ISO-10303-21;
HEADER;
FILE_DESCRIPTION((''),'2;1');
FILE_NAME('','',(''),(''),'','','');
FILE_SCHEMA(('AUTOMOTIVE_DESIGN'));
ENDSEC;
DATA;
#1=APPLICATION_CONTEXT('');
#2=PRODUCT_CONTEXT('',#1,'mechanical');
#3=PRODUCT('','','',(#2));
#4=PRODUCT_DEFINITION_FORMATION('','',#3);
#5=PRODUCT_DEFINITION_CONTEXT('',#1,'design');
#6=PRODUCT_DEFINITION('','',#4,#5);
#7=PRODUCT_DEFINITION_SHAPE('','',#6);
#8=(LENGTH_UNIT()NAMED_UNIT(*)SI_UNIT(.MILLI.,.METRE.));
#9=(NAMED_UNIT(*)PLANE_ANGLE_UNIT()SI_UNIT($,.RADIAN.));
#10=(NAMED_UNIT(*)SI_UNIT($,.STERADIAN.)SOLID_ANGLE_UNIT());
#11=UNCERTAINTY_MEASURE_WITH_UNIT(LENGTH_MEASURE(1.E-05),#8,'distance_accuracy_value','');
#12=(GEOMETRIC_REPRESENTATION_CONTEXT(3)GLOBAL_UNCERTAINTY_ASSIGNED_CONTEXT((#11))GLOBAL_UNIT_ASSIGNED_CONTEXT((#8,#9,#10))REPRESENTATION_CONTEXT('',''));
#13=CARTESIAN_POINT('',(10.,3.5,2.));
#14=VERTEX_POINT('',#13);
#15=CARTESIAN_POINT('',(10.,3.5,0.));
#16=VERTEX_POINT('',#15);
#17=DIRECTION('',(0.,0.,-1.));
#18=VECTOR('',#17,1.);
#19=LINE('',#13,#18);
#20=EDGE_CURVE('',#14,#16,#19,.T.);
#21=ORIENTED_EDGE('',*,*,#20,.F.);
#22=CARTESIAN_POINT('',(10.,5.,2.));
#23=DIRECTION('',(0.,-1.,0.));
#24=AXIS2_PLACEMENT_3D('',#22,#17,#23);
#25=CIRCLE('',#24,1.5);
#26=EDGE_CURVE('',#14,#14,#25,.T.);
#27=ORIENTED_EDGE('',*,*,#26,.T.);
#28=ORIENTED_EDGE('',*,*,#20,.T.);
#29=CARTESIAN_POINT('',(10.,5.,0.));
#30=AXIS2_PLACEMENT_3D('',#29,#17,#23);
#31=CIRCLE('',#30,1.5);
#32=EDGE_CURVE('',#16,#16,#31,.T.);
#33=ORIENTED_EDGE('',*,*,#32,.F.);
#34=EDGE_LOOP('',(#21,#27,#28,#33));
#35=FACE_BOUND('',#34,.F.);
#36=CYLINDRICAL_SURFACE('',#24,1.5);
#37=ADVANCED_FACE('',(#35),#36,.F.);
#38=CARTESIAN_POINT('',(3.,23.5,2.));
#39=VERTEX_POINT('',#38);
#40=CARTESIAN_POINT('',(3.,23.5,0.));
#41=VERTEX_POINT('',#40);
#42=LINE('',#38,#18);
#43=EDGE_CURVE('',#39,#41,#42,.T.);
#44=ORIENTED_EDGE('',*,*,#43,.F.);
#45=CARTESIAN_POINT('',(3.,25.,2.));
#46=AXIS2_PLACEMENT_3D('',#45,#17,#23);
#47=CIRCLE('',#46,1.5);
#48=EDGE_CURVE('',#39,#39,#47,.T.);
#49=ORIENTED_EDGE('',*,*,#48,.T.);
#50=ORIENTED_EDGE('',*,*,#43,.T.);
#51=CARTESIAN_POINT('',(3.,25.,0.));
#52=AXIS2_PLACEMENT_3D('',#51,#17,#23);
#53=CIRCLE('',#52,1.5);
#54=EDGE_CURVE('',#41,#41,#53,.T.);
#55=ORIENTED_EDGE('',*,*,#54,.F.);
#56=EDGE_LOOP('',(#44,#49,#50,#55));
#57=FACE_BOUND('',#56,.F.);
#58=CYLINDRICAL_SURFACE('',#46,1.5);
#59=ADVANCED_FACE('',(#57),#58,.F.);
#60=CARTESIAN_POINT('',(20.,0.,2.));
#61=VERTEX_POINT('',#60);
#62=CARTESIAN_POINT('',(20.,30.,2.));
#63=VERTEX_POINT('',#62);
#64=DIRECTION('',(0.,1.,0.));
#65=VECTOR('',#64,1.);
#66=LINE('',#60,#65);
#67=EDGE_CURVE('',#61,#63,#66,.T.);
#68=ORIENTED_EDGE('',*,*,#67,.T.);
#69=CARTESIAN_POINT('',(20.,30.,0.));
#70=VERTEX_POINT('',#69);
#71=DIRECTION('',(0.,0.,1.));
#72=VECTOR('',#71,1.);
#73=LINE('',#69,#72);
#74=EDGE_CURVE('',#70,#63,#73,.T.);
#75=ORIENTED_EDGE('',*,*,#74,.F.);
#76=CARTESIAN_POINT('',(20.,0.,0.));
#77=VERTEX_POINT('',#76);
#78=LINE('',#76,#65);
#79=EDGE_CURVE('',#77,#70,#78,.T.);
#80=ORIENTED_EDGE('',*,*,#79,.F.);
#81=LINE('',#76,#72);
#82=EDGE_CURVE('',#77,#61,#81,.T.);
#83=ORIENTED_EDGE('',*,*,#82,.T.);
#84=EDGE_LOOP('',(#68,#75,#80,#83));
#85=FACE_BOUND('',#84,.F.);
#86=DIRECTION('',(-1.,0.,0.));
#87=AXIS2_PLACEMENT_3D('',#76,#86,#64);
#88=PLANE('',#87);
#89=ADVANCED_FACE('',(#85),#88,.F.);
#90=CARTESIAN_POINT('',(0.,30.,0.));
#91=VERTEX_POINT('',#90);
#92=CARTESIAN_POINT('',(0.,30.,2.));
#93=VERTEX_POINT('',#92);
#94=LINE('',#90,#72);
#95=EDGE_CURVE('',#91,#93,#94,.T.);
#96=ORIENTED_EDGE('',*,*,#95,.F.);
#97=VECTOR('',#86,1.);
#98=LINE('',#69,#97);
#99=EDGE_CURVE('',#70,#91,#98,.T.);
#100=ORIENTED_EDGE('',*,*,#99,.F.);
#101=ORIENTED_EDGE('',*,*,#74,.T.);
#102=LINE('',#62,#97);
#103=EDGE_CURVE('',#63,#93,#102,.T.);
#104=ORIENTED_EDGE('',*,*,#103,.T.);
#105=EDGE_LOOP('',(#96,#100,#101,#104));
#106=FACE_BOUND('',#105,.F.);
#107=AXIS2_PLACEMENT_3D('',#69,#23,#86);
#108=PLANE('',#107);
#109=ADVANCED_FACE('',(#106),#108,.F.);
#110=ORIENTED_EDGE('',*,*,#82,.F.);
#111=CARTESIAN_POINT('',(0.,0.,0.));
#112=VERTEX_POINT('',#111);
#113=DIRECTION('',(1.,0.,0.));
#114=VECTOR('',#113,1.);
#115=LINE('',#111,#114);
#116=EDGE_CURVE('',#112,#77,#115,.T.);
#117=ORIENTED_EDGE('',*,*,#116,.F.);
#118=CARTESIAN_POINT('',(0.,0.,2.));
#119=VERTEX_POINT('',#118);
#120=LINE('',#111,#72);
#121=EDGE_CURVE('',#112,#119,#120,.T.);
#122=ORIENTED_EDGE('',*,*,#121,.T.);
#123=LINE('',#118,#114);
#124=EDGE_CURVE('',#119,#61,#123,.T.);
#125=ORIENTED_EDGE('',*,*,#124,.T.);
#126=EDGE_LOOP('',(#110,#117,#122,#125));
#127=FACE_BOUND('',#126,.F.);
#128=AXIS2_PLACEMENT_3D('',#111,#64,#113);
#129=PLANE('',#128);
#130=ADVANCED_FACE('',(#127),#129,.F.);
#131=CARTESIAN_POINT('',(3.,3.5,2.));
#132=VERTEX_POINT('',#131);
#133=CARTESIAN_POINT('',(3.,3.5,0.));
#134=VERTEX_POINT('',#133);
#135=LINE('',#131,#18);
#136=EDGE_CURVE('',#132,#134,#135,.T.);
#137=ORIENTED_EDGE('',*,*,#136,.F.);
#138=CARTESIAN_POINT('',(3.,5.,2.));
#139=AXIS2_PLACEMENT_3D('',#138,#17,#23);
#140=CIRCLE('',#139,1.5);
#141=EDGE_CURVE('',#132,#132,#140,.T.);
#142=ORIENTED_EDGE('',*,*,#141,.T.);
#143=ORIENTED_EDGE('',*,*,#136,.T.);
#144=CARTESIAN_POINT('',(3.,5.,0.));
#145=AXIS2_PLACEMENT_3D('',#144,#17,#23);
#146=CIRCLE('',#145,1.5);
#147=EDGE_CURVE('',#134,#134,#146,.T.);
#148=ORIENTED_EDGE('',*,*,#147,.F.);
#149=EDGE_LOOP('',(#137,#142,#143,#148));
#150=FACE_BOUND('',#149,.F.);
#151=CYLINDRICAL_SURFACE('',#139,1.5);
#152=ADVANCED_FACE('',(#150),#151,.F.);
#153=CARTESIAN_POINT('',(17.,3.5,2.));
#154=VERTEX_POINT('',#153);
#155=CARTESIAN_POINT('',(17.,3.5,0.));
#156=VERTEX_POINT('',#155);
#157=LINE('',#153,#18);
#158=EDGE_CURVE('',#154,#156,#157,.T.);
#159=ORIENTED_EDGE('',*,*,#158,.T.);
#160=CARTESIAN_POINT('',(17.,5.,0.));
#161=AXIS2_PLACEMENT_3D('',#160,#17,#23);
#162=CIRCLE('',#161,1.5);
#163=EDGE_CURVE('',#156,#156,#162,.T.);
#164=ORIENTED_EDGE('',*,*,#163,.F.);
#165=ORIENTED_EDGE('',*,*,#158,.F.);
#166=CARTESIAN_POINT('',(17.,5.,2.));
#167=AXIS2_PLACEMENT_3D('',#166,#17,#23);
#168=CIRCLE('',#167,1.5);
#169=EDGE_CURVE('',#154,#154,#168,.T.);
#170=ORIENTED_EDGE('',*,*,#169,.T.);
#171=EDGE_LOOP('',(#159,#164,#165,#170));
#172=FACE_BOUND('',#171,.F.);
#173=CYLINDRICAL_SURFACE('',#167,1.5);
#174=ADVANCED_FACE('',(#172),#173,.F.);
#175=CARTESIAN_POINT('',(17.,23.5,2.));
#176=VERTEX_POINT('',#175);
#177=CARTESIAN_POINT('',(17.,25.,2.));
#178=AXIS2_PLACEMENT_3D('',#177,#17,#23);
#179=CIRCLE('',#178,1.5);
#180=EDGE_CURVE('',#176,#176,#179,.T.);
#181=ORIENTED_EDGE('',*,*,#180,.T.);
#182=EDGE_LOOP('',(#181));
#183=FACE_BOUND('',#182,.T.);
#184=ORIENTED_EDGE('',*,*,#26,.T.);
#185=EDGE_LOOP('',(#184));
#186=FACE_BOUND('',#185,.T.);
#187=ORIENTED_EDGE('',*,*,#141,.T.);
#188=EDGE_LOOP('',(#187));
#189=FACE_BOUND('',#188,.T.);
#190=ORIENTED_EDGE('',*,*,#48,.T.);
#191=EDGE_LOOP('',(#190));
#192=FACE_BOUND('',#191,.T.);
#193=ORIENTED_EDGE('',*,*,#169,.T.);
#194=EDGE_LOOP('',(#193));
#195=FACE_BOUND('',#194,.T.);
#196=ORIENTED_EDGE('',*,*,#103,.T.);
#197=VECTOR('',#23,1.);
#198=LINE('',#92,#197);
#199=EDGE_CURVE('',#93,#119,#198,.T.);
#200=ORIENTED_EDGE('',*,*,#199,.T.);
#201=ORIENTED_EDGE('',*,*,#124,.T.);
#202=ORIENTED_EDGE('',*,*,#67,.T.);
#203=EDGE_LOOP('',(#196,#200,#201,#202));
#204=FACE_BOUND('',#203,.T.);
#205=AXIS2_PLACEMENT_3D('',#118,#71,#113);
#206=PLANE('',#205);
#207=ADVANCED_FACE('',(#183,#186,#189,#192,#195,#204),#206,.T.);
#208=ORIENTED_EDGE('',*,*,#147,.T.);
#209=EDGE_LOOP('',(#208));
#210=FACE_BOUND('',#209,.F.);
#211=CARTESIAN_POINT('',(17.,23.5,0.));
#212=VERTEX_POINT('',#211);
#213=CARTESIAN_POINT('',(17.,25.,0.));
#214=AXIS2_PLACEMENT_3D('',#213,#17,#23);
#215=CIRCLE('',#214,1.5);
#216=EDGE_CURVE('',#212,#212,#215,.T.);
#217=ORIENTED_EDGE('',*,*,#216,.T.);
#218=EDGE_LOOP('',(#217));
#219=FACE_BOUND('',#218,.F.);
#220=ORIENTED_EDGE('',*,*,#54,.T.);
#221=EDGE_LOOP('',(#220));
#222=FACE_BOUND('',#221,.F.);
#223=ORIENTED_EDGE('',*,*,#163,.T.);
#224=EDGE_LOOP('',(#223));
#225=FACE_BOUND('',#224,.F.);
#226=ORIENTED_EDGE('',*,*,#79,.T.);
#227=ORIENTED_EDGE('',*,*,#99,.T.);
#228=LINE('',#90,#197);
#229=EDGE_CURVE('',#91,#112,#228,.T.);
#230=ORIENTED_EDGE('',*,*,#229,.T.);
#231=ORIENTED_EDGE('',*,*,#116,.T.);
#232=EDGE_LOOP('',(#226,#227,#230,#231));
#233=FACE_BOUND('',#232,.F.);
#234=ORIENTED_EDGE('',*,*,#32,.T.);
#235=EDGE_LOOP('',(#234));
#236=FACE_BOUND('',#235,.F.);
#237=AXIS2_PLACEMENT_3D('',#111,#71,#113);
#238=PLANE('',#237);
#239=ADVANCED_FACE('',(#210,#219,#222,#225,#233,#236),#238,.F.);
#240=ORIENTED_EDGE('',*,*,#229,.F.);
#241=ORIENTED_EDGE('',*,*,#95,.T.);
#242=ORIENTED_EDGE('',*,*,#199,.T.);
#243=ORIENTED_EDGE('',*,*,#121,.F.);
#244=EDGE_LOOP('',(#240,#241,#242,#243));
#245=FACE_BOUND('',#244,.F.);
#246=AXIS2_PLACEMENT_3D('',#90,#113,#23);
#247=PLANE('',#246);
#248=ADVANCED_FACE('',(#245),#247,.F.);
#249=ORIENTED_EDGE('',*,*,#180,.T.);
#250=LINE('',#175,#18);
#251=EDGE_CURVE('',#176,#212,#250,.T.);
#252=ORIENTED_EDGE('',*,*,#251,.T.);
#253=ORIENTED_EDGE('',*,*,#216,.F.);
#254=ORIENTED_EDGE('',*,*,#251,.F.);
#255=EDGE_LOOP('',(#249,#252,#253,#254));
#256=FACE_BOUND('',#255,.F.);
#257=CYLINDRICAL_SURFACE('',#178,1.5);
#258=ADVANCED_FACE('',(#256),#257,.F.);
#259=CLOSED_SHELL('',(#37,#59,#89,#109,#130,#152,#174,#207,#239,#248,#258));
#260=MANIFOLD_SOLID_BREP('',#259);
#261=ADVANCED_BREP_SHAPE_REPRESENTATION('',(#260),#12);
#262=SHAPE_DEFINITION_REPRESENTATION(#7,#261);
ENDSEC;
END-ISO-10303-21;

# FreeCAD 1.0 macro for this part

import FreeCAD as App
import Part
import Sketcher

V = App.Vector

doc = App.newDocument("Part")
params = doc.addObject("Spreadsheet::Sheet", "Params")
for row, (alias, value) in enumerate([
    ("sketch1_width", "20 mm"),
    ("sketch1_height", "30 mm"),
    ("pad1_length", "2 mm"),
    ("sketch2_diameter", "3 mm"),
    ("hole_diameter", "3 mm"),
    ("sketch3_diameter", "3 mm"),
    ("hole2_diameter", "3 mm"),
], start=1):
    params.set(f"A{row}", alias)
    params.set(f"B{row}", "=" + value)
    params.setAlias(f"B{row}", alias)

body = doc.addObject("PartDesign::Body", "Body")

# Sketch on XY plane
sketch1 = body.newObject("Sketcher::SketchObject", "Sketch")
sketch1.AttachmentSupport = (doc.getObject("XY_Plane"), [""])
sketch1.MapMode = "FlatFace"
sketch1.addGeometry([
    Part.LineSegment(V(0, 30, 0), V(0, 0, 0)),
    Part.LineSegment(V(0, 0, 0), V(20, 0, 0)),
    Part.LineSegment(V(20, 0, 0), V(20, 30, 0)),
    Part.LineSegment(V(20, 30, 0), V(0, 30, 0)),
], False)
sketch1.addConstraint([
    Sketcher.Constraint("Coincident", 0, 2, 1, 1),
    Sketcher.Constraint("Coincident", 1, 2, 2, 1),
    Sketcher.Constraint("Coincident", 2, 2, 3, 1),
    Sketcher.Constraint("Coincident", 3, 2, 0, 1),
    Sketcher.Constraint("Vertical", 0),
    Sketcher.Constraint("Horizontal", 1),
    Sketcher.Constraint("Vertical", 2),
    Sketcher.Constraint("Horizontal", 3),
    Sketcher.Constraint("Coincident", 0, 2, -1, 1),
    Sketcher.Constraint("DistanceX", 1, 1, 1, 2, 20.0),
    Sketcher.Constraint("DistanceY", 0, 2, 0, 1, 30.0),
])
sketch1.setExpression("Constraints[9]", "Params.sketch1_width")
sketch1.setExpression("Constraints[10]", "Params.sketch1_height")
pad1 = body.newObject("PartDesign::Pad", "Pad")
pad1.Profile = sketch1
pad1.setExpression("Length", "Params.pad1_length")

# Sketch on XY plane
sketch2 = body.newObject("Sketcher::SketchObject", "Sketch001")
sketch2.AttachmentSupport = (doc.getObject("XY_Plane"), [""])
sketch2.MapMode = "FlatFace"
sketch2.AttachmentOffset = App.Placement(V(0, 0, 2), App.Rotation())
sketch2.addGeometry([
    Part.Circle(V(3, 5, 0), V(0, 0, 1), 1.5),
    Part.Circle(V(3, 25, 0), V(0, 0, 1), 1.5),
    Part.Circle(V(17, 25, 0), V(0, 0, 1), 1.5),
    Part.Circle(V(17, 5, 0), V(0, 0, 1), 1.5),
], False)
sketch2.addConstraint([
    Sketcher.Constraint("Equal", 0, 1),
    Sketcher.Constraint("Equal", 1, 2),
    Sketcher.Constraint("Equal", 2, 3),
    Sketcher.Constraint("Horizontal", 1, 3, 2, 3),
    Sketcher.Constraint("Horizontal", 0, 3, 3, 3),
    Sketcher.Constraint("Vertical", 0, 3, 1, 3),
    Sketcher.Constraint("Vertical", 2, 3, 3, 3),
    Sketcher.Constraint("Diameter", 0, 3.0),
    Sketcher.Constraint("DistanceX", -1, 1, 0, 3, 3.0),
    Sketcher.Constraint("DistanceY", -1, 1, 0, 3, 5.0),
    Sketcher.Constraint("DistanceY", -1, 1, 1, 3, 25.0),
    Sketcher.Constraint("DistanceX", -1, 1, 2, 3, 17.0),
])
sketch2.setExpression("Constraints[7]", "Params.sketch2_diameter")
doc.recompute()
hole = body.newObject("PartDesign::Hole", "Hole")
hole.Profile = sketch2
hole.ThreadType = "None"
hole.setExpression("Diameter", "Params.hole_diameter")
hole.DepthType = "ThroughAll"

# Sketch on XY plane
sketch3 = body.newObject("Sketcher::SketchObject", "Sketch002")
sketch3.AttachmentSupport = (doc.getObject("XY_Plane"), [""])
sketch3.MapMode = "FlatFace"
sketch3.AttachmentOffset = App.Placement(V(0, 0, 2), App.Rotation())
sketch3.addGeometry(Part.Circle(V(10, 5, 0), V(0, 0, 1), 1.5), False)
sketch3.addConstraint([
    Sketcher.Constraint("Diameter", 0, 3.0),
    Sketcher.Constraint("DistanceX", -1, 1, 0, 3, 10.0),
    Sketcher.Constraint("DistanceY", -1, 1, 0, 3, 5.0),
])
sketch3.setExpression("Constraints[0]", "Params.sketch3_diameter")
doc.recompute()
hole2 = body.newObject("PartDesign::Hole", "Hole001")
hole2.Profile = sketch3
hole2.ThreadType = "None"
hole2.setExpression("Diameter", "Params.hole2_diameter")
hole2.DepthType = "ThroughAll"

doc.recompute()
